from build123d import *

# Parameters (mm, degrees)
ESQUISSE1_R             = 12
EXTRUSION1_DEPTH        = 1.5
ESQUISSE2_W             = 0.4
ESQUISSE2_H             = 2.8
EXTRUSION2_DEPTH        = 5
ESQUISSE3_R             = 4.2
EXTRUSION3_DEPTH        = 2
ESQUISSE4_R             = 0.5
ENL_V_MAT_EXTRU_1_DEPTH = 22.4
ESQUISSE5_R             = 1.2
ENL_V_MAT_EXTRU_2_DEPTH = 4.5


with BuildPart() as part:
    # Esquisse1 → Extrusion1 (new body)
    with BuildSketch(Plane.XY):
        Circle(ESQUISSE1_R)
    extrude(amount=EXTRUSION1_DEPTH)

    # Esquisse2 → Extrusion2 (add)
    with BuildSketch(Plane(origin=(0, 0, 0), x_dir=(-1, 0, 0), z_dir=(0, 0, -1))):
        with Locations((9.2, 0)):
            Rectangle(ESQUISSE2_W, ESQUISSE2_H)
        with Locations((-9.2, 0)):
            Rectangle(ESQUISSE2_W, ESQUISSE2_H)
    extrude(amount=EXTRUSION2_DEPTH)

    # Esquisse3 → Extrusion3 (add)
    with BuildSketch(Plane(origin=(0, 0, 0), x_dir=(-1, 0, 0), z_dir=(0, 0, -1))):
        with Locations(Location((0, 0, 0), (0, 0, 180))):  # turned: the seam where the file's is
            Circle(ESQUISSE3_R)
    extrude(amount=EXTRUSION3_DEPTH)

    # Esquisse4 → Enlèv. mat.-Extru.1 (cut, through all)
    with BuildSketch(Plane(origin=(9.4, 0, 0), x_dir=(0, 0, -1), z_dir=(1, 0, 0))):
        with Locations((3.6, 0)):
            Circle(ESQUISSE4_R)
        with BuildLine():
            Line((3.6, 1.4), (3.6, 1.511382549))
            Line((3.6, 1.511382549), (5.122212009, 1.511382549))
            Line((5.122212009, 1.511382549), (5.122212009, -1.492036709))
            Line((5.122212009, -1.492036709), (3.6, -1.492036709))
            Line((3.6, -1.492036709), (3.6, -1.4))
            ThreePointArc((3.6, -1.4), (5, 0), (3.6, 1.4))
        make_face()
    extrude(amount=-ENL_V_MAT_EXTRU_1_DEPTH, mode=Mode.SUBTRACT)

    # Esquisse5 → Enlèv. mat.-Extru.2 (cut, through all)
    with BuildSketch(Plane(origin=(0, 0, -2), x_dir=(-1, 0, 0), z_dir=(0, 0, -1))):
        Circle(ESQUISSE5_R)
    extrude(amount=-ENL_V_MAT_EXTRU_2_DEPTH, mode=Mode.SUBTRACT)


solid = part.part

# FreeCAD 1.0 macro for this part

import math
import FreeCAD as App
import Part
import Sketcher

V = App.Vector


def add_polygon(sketch, points):
    """Adds a closed chain of lines whose ends are joined by coincident constraints."""
    first, n = sketch.GeometryCount, len(points)
    for a, b in zip(points, points[1:] + points[:1]):
        sketch.addGeometry(Part.LineSegment(App.Vector(*a, 0), App.Vector(*b, 0)), False)
    for i in range(n):
        sketch.addConstraint(Sketcher.Constraint("Coincident", first + i, 2, first + (i + 1) % n, 1))

doc = App.newDocument("Part")
body = doc.addObject("PartDesign::Body", "Body")

sketch1 = body.newObject("Sketcher::SketchObject", "Sketch")
sketch1.AttachmentSupport = (doc.getObject("XY_Plane"), [""])
sketch1.MapMode = "FlatFace"
sketch1.addGeometry(Part.Circle(V(0, 0, 0), V(0, 0, 1), 12), False)
sketch1.addConstraint(Sketcher.Constraint("Coincident", 0, 3, -1, 1))
sketch1.addConstraint(Sketcher.Constraint("Diameter", 0, 24.0))
pad1 = body.newObject("PartDesign::Pad", "Pad")
pad1.Profile = sketch1
pad1.Length = 1.5

sketch2 = body.newObject("Sketcher::SketchObject", "Sketch001")
sketch2.AttachmentSupport = (doc.getObject("XY_Plane"), [""])
sketch2.MapMode = "FlatFace"
add_polygon(sketch2, [(-9, 1.4), (-9, -1.4), (-9.4, -1.4), (-9.4, 1.4)])
add_polygon(sketch2, [(9.4, 1.4), (9.4, -1.4), (9, -1.4), (9, 1.4)])
sketch2.addConstraint(Sketcher.Constraint("Vertical", 0))
sketch2.addConstraint(Sketcher.Constraint("Horizontal", 1))
sketch2.addConstraint(Sketcher.Constraint("Vertical", 2))
sketch2.addConstraint(Sketcher.Constraint("Horizontal", 3))
sketch2.addConstraint(Sketcher.Constraint("Vertical", 4))
sketch2.addConstraint(Sketcher.Constraint("Horizontal", 5))
sketch2.addConstraint(Sketcher.Constraint("Vertical", 6))
sketch2.addConstraint(Sketcher.Constraint("Horizontal", 7))
sketch2.addConstraint(Sketcher.Constraint("Symmetric", 2, 2, 4, 2, -1, 1))
sketch2.addConstraint(Sketcher.Constraint("Symmetric", 0, 2, 6, 2, -1, 1))
sketch2.addConstraint(Sketcher.Constraint("Horizontal", 1, 2, 4, 2))
sketch2.addConstraint(Sketcher.Constraint("DistanceX", 1, 2, 1, 1, 0.4))
sketch2.addConstraint(Sketcher.Constraint("DistanceY", 0, 2, 0, 1, 2.8))
sketch2.addConstraint(Sketcher.Constraint("DistanceX", 0, 2, -1, 1, 9.0))
pad2 = body.newObject("PartDesign::Pad", "Pad001")
pad2.Profile = sketch2
pad2.Length = 5
pad2.Reversed = True

sketch3 = body.newObject("Sketcher::SketchObject", "Sketch002")
sketch3.AttachmentSupport = (doc.getObject("XY_Plane"), [""])
sketch3.MapMode = "FlatFace"
sketch3.addGeometry(Part.Circle(V(0, 0, 0), V(0, 0, 1), 4.2), False)
sketch3.addConstraint(Sketcher.Constraint("Coincident", 0, 3, -1, 1))
sketch3.addConstraint(Sketcher.Constraint("Diameter", 0, 8.4))
pad3 = body.newObject("PartDesign::Pad", "Pad002")
pad3.Profile = sketch3
pad3.Length = 2
pad3.Reversed = True

sketch4 = body.newObject("Sketcher::SketchObject", "Sketch003")
sketch4.AttachmentSupport = (doc.getObject("YZ_Plane"), [""])
sketch4.MapMode = "FlatFace"
sketch4.AttachmentOffset = App.Placement(V(0, 0, 9.4), App.Rotation())
sketch4.addGeometry(Part.Circle(V(0, -3.6, 0), V(0, 0, 1), 0.5), False)
sketch4.addGeometry(Part.LineSegment(V(1.51, -3.6, 0), V(1.4, -3.6, 0)), False)
sketch4.addGeometry(Part.ArcOfCircle(Part.Circle(V(0, -3.6, 0), V(0, 0, 1), 1.4), math.radians(180), math.radians(360)), False)
sketch4.addGeometry(Part.LineSegment(V(-1.4, -3.6, 0), V(-1.49, -3.6, 0)), False)
sketch4.addGeometry(Part.LineSegment(V(-1.49, -3.6, 0), V(-1.49, -5.12, 0)), False)
sketch4.addGeometry(Part.LineSegment(V(-1.49, -5.12, 0), V(1.51, -5.12, 0)), False)
sketch4.addGeometry(Part.LineSegment(V(1.51, -5.12, 0), V(1.51, -3.6, 0)), False)
sketch4.addConstraint(Sketcher.Constraint("Coincident", 1, 2, 2, 2))
sketch4.addConstraint(Sketcher.Constraint("Coincident", 2, 1, 3, 1))
sketch4.addConstraint(Sketcher.Constraint("Coincident", 3, 2, 4, 1))
sketch4.addConstraint(Sketcher.Constraint("Coincident", 4, 2, 5, 1))
sketch4.addConstraint(Sketcher.Constraint("Coincident", 5, 2, 6, 1))
sketch4.addConstraint(Sketcher.Constraint("Coincident", 6, 2, 1, 1))
sketch4.addConstraint(Sketcher.Constraint("Horizontal", 1))
sketch4.addConstraint(Sketcher.Constraint("Horizontal", 3))
sketch4.addConstraint(Sketcher.Constraint("Vertical", 4))
sketch4.addConstraint(Sketcher.Constraint("Horizontal", 5))
sketch4.addConstraint(Sketcher.Constraint("Vertical", 6))
sketch4.addConstraint(Sketcher.Constraint("Coincident", 2, 3, 0, 3))
sketch4.addConstraint(Sketcher.Constraint("Symmetric", 1, 2, 2, 1, -2))
sketch4.addConstraint(Sketcher.Constraint("Horizontal", 2, 3, 1, 2))
sketch4.addConstraint(Sketcher.Constraint("Diameter", 0, 1.0))
sketch4.addConstraint(Sketcher.Constraint("Radius", 2, 1.4))
sketch4.addConstraint(Sketcher.Constraint("DistanceY", 0, 3, -1, 1, 3.6))
sketch4.addConstraint(Sketcher.Constraint("DistanceX", 5, 1, 5, 2, 3.003419))
sketch4.addConstraint(Sketcher.Constraint("DistanceX", 1, 2, 1, 1, 0.111383))
sketch4.addConstraint(Sketcher.Constraint("DistanceY", 4, 2, 4, 1, 1.522212))
pocket1 = body.newObject("PartDesign::Pocket", "Pocket")
pocket1.Profile = sketch4
pocket1.Type = "ThroughAll"

sketch5 = body.newObject("Sketcher::SketchObject", "Sketch004")
sketch5.AttachmentSupport = (doc.getObject("XY_Plane"), [""])
sketch5.MapMode = "FlatFace"
sketch5.AttachmentOffset = App.Placement(V(0, 0, -2), App.Rotation())
sketch5.addGeometry(Part.Circle(V(0, 0, 0), V(0, 0, 1), 1.2), False)
sketch5.addConstraint(Sketcher.Constraint("Coincident", 0, 3, -1, 1))
sketch5.addConstraint(Sketcher.Constraint("Diameter", 0, 2.4))
pocket2 = body.newObject("PartDesign::Pocket", "Pocket001")
pocket2.Profile = sketch5
pocket2.Type = "ThroughAll"
pocket2.Reversed = True

doc.recompute()
